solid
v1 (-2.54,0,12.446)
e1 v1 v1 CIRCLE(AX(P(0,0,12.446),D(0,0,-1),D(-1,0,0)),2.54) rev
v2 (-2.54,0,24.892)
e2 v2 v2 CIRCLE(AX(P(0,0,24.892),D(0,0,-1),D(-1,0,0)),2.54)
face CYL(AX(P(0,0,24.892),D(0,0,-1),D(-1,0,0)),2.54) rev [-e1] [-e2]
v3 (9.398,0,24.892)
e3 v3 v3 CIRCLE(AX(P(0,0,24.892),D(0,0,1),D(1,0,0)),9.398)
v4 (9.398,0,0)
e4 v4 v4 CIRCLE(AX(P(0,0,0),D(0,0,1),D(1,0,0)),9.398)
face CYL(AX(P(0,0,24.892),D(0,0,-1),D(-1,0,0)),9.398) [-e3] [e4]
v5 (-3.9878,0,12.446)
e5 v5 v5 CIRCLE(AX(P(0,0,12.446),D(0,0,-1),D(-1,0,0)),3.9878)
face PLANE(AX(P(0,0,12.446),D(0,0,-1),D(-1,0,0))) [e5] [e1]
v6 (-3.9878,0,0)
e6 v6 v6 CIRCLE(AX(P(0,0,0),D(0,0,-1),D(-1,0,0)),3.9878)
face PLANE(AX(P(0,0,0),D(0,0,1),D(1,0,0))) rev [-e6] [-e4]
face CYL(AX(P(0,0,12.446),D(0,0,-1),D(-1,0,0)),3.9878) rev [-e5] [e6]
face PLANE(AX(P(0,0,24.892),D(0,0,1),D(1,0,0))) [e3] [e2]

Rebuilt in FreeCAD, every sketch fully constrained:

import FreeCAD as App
import Part
import Sketcher
Q = App.Units.Quantity

doc = App.newDocument("Part")
body = doc.addObject("PartDesign::Body", "Body")

# Sketch on XY plane
sketch1 = body.newObject("Sketcher::SketchObject", "Sketch")
sketch1.AttachmentSupport = (doc.getObject("XY_Plane"), [""])
sketch1.MapMode = "FlatFace"
sketch1.addGeometry(Part.Circle(App.Vector(0, 0, 0), App.Vector(0, 0, 1), 9), False)
sketch1.addConstraint([
    Sketcher.Constraint("Coincident", 0, 3, -1, 1),
    Sketcher.Constraint("Diameter", 0, Q("0.74 in")),
])
pad1 = body.newObject("PartDesign::Pad", "Pad")
pad1.Profile = sketch1
pad1.Length = Q("0.98 in")

# Sketch on XY plane
sketch2 = body.newObject("Sketcher::SketchObject", "Sketch001")
sketch2.AttachmentSupport = (doc.getObject("XY_Plane"), [""])
sketch2.MapMode = "FlatFace"
sketch2.addGeometry(Part.Circle(App.Vector(0, 0, 0), App.Vector(0, 0, 1), 2.5), False)
sketch2.addConstraint([
    Sketcher.Constraint("Coincident", 0, 3, -1, 1),
    Sketcher.Constraint("Diameter", 0, Q("0.2 in")),
])
pocket1 = body.newObject("PartDesign::Pocket", "Pocket")
pocket1.Profile = sketch2
pocket1.Type = "ThroughAll"
pocket1.Midplane = True

# Sketch on XY plane
sketch3 = body.newObject("Sketcher::SketchObject", "Sketch002")
sketch3.AttachmentSupport = (doc.getObject("XY_Plane"), [""])
sketch3.MapMode = "FlatFace"
sketch3.addGeometry(Part.Circle(App.Vector(0, 0, 0), App.Vector(0, 0, 1), 4), False)
sketch3.addConstraint([
    Sketcher.Constraint("Coincident", 0, 3, -1, 1),
    Sketcher.Constraint("Diameter", 0, Q("0.314 in")),
])
pocket2 = body.newObject("PartDesign::Pocket", "Pocket001")
pocket2.Profile = sketch3
pocket2.Length = Q("0.49 in")
pocket2.Reversed = True

doc.recompute()
